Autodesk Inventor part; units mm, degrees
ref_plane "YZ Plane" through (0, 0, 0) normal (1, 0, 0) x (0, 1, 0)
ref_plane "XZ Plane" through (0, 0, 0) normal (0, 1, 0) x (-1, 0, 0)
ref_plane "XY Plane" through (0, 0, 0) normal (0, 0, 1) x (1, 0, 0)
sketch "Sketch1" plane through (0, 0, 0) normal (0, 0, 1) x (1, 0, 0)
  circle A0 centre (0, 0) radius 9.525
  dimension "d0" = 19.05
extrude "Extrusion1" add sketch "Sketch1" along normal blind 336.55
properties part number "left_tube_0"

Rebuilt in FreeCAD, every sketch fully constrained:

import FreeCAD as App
import Part
import Sketcher

V = App.Vector
Q = App.Units.Quantity

doc = App.newDocument("Part")
params = doc.addObject("Spreadsheet::Sheet", "Params")
for row, (alias, value) in enumerate([
    ("sketch1_diameter", "0.75 in"),
    ("pad1_length", "13.25 in"),
], start=1):
    params.set(f"A{row}", alias)
    params.set(f"B{row}", "=" + value)
    params.setAlias(f"B{row}", alias)

body = doc.addObject("PartDesign::Body", "Body")

# Sketch on XY plane
sketch1 = body.newObject("Sketcher::SketchObject", "Sketch")
sketch1.AttachmentSupport = (doc.getObject("XY_Plane"), [""])
sketch1.MapMode = "FlatFace"
sketch1.addGeometry(Part.Circle(V(0, 0, 0), V(0, 0, 1), 10), False)
sketch1.addConstraint(Sketcher.Constraint("Coincident", 0, 3, -1, 1))
sketch1.addConstraint(Sketcher.Constraint("Diameter", 0, Q("0.75 in")))
sketch1.setExpression("Constraints[1]", "Params.sketch1_diameter")
pad1 = body.newObject("PartDesign::Pad", "Pad")
pad1.Profile = sketch1
pad1.setExpression("Length", "Params.pad1_length")

doc.recompute()
